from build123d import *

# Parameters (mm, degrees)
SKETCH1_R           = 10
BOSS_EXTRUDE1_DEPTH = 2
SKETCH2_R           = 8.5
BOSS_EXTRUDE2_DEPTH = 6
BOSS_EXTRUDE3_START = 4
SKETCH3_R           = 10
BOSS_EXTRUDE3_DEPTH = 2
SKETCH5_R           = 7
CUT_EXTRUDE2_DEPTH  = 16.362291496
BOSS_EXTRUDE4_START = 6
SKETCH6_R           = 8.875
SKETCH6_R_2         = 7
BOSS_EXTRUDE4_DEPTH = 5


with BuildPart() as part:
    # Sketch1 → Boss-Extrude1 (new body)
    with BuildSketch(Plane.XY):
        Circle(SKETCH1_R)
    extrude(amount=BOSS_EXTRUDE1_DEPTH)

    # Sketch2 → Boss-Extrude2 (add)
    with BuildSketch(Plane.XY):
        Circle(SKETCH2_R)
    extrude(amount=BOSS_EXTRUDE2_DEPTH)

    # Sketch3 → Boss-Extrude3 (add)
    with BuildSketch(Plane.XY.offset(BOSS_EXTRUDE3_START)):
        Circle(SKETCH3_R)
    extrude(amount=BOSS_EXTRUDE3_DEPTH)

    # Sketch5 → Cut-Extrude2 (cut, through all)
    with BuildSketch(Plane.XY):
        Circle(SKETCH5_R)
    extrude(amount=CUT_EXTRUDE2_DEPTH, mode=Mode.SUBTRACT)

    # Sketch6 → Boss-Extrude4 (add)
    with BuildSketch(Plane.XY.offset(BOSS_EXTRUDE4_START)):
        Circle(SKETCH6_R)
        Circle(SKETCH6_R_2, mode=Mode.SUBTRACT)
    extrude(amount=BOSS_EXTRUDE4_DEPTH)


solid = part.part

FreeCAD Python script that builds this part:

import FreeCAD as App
import Part
import Sketcher

V = App.Vector
Q = App.Units.Quantity

doc = App.newDocument("Part")
params = doc.addObject("Spreadsheet::Sheet", "Params")
for row, (alias, value) in enumerate([
    ("sketch1_diameter", "20 mm"),
    ("pad1_length", "2 mm"),
    ("sketch2_diameter", "17 mm"),
    ("pad2_length", "6 mm"),
    ("sketch3_diameter", "20 mm"),
    ("pad3_length", "2 mm"),
    ("sketch4_diameter", "14 mm"),
    ("sketch5_diameter", "14 mm"),
    ("sketch5_diameter2", "17.75 mm"),
    ("pad4_length", "5 mm"),
], start=1):
    params.set(f"A{row}", alias)
    params.set(f"B{row}", "=" + value)
    params.setAlias(f"B{row}", alias)

body = doc.addObject("PartDesign::Body", "Body")

sketch1 = body.newObject("Sketcher::SketchObject", "Sketch")
sketch1.AttachmentSupport = (doc.getObject("XY_Plane"), [""])
sketch1.MapMode = "FlatFace"
sketch1.addGeometry(Part.Circle(V(0, 0, 0), V(0, 0, 1), 10), False)
sketch1.addConstraint(Sketcher.Constraint("Coincident", 0, 3, -1, 1))
sketch1.addConstraint(Sketcher.Constraint("Diameter", 0, Q("20 mm")))
sketch1.setExpression("Constraints[1]", "Params.sketch1_diameter")
pad1 = body.newObject("PartDesign::Pad", "Pad")
pad1.Profile = sketch1
pad1.setExpression("Length", "Params.pad1_length")

sketch2 = body.newObject("Sketcher::SketchObject", "Sketch001")
sketch2.AttachmentSupport = (doc.getObject("XY_Plane"), [""])
sketch2.MapMode = "FlatFace"
sketch2.addGeometry(Part.Circle(V(0, 0, 0), V(0, 0, 1), 8.5), False)
sketch2.addConstraint(Sketcher.Constraint("Coincident", 0, 3, -1, 1))
sketch2.addConstraint(Sketcher.Constraint("Diameter", 0, Q("17 mm")))
sketch2.setExpression("Constraints[1]", "Params.sketch2_diameter")
pad2 = body.newObject("PartDesign::Pad", "Pad001")
pad2.Profile = sketch2
pad2.setExpression("Length", "Params.pad2_length")

sketch3 = body.newObject("Sketcher::SketchObject", "Sketch002")
sketch3.AttachmentSupport = (doc.getObject("XY_Plane"), [""])
sketch3.MapMode = "FlatFace"
sketch3.AttachmentOffset = App.Placement(V(0, 0, 4), App.Rotation())
sketch3.addGeometry(Part.Circle(V(0, 0, 0), V(0, 0, 1), 10), False)
sketch3.addConstraint(Sketcher.Constraint("Coincident", 0, 3, -1, 1))
sketch3.addConstraint(Sketcher.Constraint("Diameter", 0, Q("20 mm")))
sketch3.setExpression("Constraints[1]", "Params.sketch3_diameter")
pad3 = body.newObject("PartDesign::Pad", "Pad002")
pad3.Profile = sketch3
pad3.setExpression("Length", "Params.pad3_length")

sketch4 = body.newObject("Sketcher::SketchObject", "Sketch003")
sketch4.AttachmentSupport = (doc.getObject("XY_Plane"), [""])
sketch4.MapMode = "FlatFace"
sketch4.addGeometry(Part.Circle(V(0, 0, 0), V(0, 0, 1), 7), False)
sketch4.addConstraint(Sketcher.Constraint("Coincident", 0, 3, -1, 1))
sketch4.addConstraint(Sketcher.Constraint("Diameter", 0, Q("14 mm")))
sketch4.setExpression("Constraints[1]", "Params.sketch4_diameter")
pocket1 = body.newObject("PartDesign::Pocket", "Pocket")
pocket1.Profile = sketch4
pocket1.Type = "ThroughAll"
pocket1.Reversed = True

sketch5 = body.newObject("Sketcher::SketchObject", "Sketch004")
sketch5.AttachmentSupport = (doc.getObject("XY_Plane"), [""])
sketch5.MapMode = "FlatFace"
sketch5.AttachmentOffset = App.Placement(V(0, 0, 6), App.Rotation())
sketch5.addGeometry(Part.Circle(V(0, 0, 0), V(0, 0, 1), 8.875), False)
sketch5.addGeometry(Part.Circle(V(0, 0, 0), V(0, 0, 1), 7), False)
sketch5.addConstraint(Sketcher.Constraint("Coincident", 0, 3, -1, 1))
sketch5.addConstraint(Sketcher.Constraint("Coincident", 1, 3, -1, 1))
sketch5.addConstraint(Sketcher.Constraint("Diameter", 1, Q("14 mm")))
sketch5.addConstraint(Sketcher.Constraint("Diameter", 0, Q("17.75 mm")))
sketch5.setExpression("Constraints[2]", "Params.sketch5_diameter")
sketch5.setExpression("Constraints[3]", "Params.sketch5_diameter2")
pad4 = body.newObject("PartDesign::Pad", "Pad003")
pad4.Profile = sketch5
pad4.setExpression("Length", "Params.pad4_length")

doc.recompute()
